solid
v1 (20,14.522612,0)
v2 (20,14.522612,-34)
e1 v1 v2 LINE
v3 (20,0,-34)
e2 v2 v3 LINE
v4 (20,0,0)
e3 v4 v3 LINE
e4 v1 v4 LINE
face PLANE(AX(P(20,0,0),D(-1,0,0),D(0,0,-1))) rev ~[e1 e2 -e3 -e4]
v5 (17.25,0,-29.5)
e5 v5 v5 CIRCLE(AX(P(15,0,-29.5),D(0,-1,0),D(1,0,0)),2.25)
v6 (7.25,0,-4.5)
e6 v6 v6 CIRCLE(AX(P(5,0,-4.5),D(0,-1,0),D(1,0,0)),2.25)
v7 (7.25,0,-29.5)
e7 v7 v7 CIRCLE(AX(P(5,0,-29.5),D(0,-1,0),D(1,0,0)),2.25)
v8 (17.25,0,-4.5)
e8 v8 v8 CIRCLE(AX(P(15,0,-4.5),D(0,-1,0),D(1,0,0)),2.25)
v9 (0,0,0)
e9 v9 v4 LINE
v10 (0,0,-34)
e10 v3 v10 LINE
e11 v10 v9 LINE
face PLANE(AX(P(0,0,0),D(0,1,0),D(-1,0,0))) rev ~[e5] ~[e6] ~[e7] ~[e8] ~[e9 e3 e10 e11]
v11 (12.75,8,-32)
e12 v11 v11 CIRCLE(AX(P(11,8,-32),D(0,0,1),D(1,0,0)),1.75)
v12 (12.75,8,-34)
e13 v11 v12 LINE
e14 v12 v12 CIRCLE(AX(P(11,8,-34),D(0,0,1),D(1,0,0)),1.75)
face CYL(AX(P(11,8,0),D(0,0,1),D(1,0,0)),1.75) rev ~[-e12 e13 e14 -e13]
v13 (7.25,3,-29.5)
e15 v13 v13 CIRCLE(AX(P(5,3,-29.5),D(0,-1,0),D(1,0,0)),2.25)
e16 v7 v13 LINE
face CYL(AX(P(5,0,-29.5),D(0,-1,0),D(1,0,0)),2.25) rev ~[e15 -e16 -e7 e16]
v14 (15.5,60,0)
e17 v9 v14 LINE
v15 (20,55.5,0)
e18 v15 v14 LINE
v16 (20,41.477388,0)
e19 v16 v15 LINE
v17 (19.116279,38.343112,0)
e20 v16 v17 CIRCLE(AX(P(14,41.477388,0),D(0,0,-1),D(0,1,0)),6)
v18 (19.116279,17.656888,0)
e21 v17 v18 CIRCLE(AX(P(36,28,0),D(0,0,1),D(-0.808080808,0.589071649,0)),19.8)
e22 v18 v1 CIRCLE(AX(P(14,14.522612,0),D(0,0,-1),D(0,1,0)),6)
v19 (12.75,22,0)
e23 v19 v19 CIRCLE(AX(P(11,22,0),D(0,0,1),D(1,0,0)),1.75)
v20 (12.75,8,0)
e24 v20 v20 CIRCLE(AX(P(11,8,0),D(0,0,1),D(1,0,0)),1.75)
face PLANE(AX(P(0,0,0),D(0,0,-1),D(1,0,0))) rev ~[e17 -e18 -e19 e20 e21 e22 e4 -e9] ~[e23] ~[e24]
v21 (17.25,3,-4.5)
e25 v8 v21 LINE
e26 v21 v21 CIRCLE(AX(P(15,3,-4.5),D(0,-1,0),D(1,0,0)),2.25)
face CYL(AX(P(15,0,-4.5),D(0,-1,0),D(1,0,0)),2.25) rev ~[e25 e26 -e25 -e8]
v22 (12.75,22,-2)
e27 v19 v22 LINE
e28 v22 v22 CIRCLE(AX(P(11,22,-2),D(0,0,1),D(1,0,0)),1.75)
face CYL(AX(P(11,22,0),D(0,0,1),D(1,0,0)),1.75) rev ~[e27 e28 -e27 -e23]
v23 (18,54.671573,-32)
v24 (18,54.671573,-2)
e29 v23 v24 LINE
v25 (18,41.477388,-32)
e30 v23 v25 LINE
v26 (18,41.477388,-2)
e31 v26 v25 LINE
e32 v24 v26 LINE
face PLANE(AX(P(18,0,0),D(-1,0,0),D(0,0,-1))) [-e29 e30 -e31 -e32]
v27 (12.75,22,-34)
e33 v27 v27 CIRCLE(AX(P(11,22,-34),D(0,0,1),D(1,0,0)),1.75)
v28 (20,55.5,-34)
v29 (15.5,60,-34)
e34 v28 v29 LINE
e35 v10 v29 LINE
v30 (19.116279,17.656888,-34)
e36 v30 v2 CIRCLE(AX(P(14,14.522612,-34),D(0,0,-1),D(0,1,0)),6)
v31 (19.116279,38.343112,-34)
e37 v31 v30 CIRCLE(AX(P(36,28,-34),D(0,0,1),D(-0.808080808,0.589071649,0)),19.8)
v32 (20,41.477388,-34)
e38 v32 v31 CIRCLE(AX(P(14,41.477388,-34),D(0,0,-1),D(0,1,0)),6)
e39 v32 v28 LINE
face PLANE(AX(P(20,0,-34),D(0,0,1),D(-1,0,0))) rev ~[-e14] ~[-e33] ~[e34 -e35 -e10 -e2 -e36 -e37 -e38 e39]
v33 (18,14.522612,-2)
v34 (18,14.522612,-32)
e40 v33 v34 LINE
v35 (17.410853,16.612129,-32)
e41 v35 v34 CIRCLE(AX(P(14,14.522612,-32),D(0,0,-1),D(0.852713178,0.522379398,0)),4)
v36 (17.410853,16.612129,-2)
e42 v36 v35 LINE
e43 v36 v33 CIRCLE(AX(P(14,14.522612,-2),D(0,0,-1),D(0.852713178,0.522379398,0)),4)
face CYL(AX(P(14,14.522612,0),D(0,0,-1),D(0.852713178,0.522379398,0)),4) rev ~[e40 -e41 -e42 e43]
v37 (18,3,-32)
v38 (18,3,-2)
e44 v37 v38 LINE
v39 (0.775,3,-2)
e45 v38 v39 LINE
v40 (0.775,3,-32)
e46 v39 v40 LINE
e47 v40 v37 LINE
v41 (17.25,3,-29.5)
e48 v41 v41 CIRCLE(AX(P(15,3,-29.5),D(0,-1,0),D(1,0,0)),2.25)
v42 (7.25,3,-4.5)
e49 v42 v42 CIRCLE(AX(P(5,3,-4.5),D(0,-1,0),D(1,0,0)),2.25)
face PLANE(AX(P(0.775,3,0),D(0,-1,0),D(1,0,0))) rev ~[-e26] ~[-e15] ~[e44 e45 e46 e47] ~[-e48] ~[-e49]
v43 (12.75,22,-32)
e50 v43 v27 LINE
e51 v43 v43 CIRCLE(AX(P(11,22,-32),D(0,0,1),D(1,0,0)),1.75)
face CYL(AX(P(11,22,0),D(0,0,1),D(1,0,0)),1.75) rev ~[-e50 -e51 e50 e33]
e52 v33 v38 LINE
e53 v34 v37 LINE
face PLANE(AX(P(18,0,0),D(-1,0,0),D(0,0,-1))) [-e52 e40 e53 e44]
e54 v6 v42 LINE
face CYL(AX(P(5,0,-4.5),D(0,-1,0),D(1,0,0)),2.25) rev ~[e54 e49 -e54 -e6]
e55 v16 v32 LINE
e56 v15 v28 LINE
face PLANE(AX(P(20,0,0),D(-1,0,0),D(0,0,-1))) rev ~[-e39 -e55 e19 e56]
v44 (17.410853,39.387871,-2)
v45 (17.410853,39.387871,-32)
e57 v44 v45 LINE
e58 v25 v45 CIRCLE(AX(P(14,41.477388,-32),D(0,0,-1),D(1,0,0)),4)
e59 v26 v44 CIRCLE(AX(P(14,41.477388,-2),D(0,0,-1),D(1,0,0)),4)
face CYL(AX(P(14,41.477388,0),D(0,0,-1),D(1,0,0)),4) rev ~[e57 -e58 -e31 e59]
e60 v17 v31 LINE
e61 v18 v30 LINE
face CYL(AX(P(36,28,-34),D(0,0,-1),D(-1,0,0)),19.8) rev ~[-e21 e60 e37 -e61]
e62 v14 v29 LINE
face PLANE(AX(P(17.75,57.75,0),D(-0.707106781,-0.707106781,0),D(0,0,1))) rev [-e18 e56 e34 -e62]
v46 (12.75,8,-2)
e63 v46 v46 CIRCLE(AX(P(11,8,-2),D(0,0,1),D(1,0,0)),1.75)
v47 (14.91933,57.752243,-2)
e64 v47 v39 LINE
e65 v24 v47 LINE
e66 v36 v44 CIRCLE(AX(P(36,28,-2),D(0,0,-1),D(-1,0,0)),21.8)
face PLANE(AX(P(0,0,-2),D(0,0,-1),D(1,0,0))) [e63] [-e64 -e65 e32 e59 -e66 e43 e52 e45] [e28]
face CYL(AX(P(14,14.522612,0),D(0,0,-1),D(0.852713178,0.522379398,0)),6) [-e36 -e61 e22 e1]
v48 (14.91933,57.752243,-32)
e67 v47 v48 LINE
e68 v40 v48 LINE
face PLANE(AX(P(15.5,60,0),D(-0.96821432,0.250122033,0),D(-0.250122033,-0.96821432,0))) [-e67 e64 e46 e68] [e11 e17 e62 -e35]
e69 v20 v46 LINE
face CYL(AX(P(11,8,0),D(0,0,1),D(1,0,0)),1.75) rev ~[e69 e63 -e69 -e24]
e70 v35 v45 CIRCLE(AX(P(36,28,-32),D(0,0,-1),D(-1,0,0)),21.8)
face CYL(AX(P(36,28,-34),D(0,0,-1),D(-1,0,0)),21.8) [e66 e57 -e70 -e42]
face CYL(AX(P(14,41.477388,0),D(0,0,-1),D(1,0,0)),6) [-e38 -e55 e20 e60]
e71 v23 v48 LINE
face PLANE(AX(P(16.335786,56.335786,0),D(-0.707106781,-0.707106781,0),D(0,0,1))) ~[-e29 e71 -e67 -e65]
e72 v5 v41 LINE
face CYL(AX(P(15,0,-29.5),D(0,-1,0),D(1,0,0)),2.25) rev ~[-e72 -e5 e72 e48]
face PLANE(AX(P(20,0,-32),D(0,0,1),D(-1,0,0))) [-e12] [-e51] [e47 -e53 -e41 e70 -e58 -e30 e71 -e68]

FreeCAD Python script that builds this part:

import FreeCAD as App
import Part
import Sketcher
from FreeCAD import Vector


def edges_at(feature, points):
    """Names of the edges that pass closest to the given points."""
    edges = feature.Shape.Edges
    near = lambda p: min(range(len(edges)), key=lambda i: edges[i].distToShape(Part.Vertex(*p))[0])
    return sorted({f"Edge{near(p) + 1}" for p in points})


def faces_at(feature, points):
    """Names of the faces that lie closest to the given points."""
    faces = feature.Shape.Faces
    near = lambda p: min(range(len(faces)), key=lambda i: faces[i].distToShape(Part.Vertex(*p))[0])
    return sorted({f"Face{near(p) + 1}" for p in points})


def add_polygon(sketch, points):
    """Adds a closed chain of lines whose ends are joined by coincident constraints."""
    first, n = sketch.GeometryCount, len(points)
    for a, b in zip(points, points[1:] + points[:1]):
        sketch.addGeometry(Part.LineSegment(App.Vector(*a, 0), App.Vector(*b, 0)), False)
    for i in range(n):
        sketch.addConstraint(Sketcher.Constraint("Coincident", first + i, 2, first + (i + 1) % n, 1))

doc = App.newDocument("Part")
body = doc.addObject("PartDesign::Body", "Body")

# Sketch on XZ plane
sketch1 = doc.addObject("Sketcher::SketchObject", "Sketch")
body.addObject(sketch1)
sketch1.AttachmentSupport = (doc.XZ_Plane, [""])
sketch1.MapMode = "FlatFace"
add_polygon(sketch1, [(0, -34), (0, 0), (20, 0), (20, -34)])  # lines 0-3
sketch1.addConstraint(Sketcher.Constraint("Vertical", 0))
sketch1.addConstraint(Sketcher.Constraint("Horizontal", 1))
sketch1.addConstraint(Sketcher.Constraint("Vertical", 2))
sketch1.addConstraint(Sketcher.Constraint("Horizontal", 3))
sketch1.addConstraint(Sketcher.Constraint("Coincident", 0, 2, -1, 1))
sketch1.addConstraint(Sketcher.Constraint("DistanceX", 1, 1, 1, 2, 20.0))
sketch1.addConstraint(Sketcher.Constraint("DistanceY", 0, 1, 0, 2, 34.0))
pad1 = doc.addObject("PartDesign::Pad", "Pad")
body.addObject(pad1)
pad1.Profile = sketch1
pad1.Length = 60
pad1.Reversed = True
doc.recompute()

chamfer = doc.addObject("PartDesign::Chamfer", "Chamfer")
body.addObject(chamfer)
chamfer.Base = (pad1, edges_at(pad1, [(20, 60, -17)]))
chamfer.Size = 4.5

# Sketch on XY plane
sketch2 = doc.addObject("Sketcher::SketchObject", "Sketch001")
body.addObject(sketch2)
sketch2.AttachmentSupport = (doc.XY_Plane, [""])
sketch2.MapMode = "FlatFace"
add_polygon(sketch2, [(16, 60), (0, 60), (0, 0)])  # lines 0-2
sketch2.addConstraint(Sketcher.Constraint("Horizontal", 0))
sketch2.addConstraint(Sketcher.Constraint("Vertical", 1))
sketch2.addConstraint(Sketcher.Constraint("Coincident", 1, 2, -1, 1))
sketch2.addConstraint(Sketcher.Constraint("DistanceY", 1, 2, 1, 1, 60.0))
sketch2.addConstraint(Sketcher.Constraint("DistanceX", 0, 2, 0, 1, 15.5))
pocket1 = doc.addObject("PartDesign::Pocket", "Pocket")
body.addObject(pocket1)
pocket1.Profile = sketch2
pocket1.Length = 60

# Sketch on XY plane
sketch3 = doc.addObject("Sketcher::SketchObject", "Sketch002")
body.addObject(sketch3)
sketch3.AttachmentSupport = (doc.XY_Plane, [""])
sketch3.MapMode = "FlatFace"
sketch3.AttachmentOffset = App.Placement(Vector(0, 0, -34), App.Rotation())
sketch3.addGeometry(Part.Circle(Vector(36, 28, 0), Vector(0, 0, 1), 20), False)
sketch3.addConstraint(Sketcher.Constraint("Diameter", 0, 39.6))
sketch3.addConstraint(Sketcher.Constraint("DistanceY", -1, 1, 0, 3, 28.0))
sketch3.addConstraint(Sketcher.Constraint("DistanceX", -1, 1, 0, 3, 36.0))
pocket2 = doc.addObject("PartDesign::Pocket", "Pocket001")
body.addObject(pocket2)
pocket2.Profile = sketch3
pocket2.Length = 60
pocket2.Reversed = True
doc.recompute()

fillet = doc.addObject("PartDesign::Fillet", "Fillet")
body.addObject(fillet)
fillet.Base = (pocket2, edges_at(pocket2, [(20, 16.336, -17), (20, 39.664, -17)]))
fillet.Radius = 6
doc.recompute()

thickness = doc.addObject("PartDesign::Thickness", "Thickness")
body.addObject(thickness)
thickness.Base = (fillet, faces_at(fillet, [(10.333, 40, -22.667)]))
thickness.Value = 2
thickness.Reversed = True
thickness.Join = "Intersection"

# Sketch on XY plane
sketch4 = doc.addObject("Sketcher::SketchObject", "Sketch003")
body.addObject(sketch4)
sketch4.AttachmentSupport = (doc.XY_Plane, [""])
sketch4.MapMode = "FlatFace"
add_polygon(sketch4, [(0.8, 3), (0, 0), (20, 0), (20, 3)])  # lines 0-3
sketch4.addConstraint(Sketcher.Constraint("Horizontal", 1))
sketch4.addConstraint(Sketcher.Constraint("Vertical", 2))
sketch4.addConstraint(Sketcher.Constraint("Horizontal", 3))
sketch4.addConstraint(Sketcher.Constraint("Coincident", 0, 2, -1, 1))
sketch4.addConstraint(Sketcher.Constraint("DistanceY", 2, 1, 2, 2, 3.0))
sketch4.addConstraint(Sketcher.Constraint("DistanceX", 1, 1, 1, 2, 20.0))
sketch4.addConstraint(Sketcher.Constraint("DistanceX", 3, 2, 3, 1, 19.225))
pad2 = doc.addObject("PartDesign::Pad", "Pad001")
body.addObject(pad2)
pad2.Profile = sketch4
pad2.Length = 34
pad2.Reversed = True

# Sketch on XZ plane
sketch5 = doc.addObject("Sketcher::SketchObject", "Sketch004")
body.addObject(sketch5)
sketch5.AttachmentSupport = (doc.XZ_Plane, [""])
sketch5.MapMode = "FlatFace"
sketch5.addGeometry(Part.Circle(Vector(5, -4.5, 0), Vector(0, 0, 1), 2.2), False)
sketch5.addGeometry(Part.Circle(Vector(15, -4.5, 0), Vector(0, 0, 1), 2.2), False)
sketch5.addGeometry(Part.Circle(Vector(5, -29.5, 0), Vector(0, 0, 1), 2.2), False)
sketch5.addGeometry(Part.Circle(Vector(15, -29.5, 0), Vector(0, 0, 1), 2.2), False)
sketch5.addConstraint(Sketcher.Constraint("Equal", 0, 1))
sketch5.addConstraint(Sketcher.Constraint("Equal", 1, 2))
sketch5.addConstraint(Sketcher.Constraint("Equal", 2, 3))
sketch5.addConstraint(Sketcher.Constraint("Horizontal", 0, 3, 1, 3))
sketch5.addConstraint(Sketcher.Constraint("Horizontal", 2, 3, 3, 3))
sketch5.addConstraint(Sketcher.Constraint("Vertical", 0, 3, 2, 3))
sketch5.addConstraint(Sketcher.Constraint("Vertical", 1, 3, 3, 3))
sketch5.addConstraint(Sketcher.Constraint("Diameter", 0, 4.5))
sketch5.addConstraint(Sketcher.Constraint("DistanceX", -1, 1, 0, 3, 5.0))
sketch5.addConstraint(Sketcher.Constraint("DistanceX", 0, 3, 1, 3, 10.0))
sketch5.addConstraint(Sketcher.Constraint("DistanceY", 2, 3, 0, 3, 25.0))
sketch5.addConstraint(Sketcher.Constraint("DistanceY", 0, 3, -1, 1, 4.5))
pocket3 = doc.addObject("PartDesign::Pocket", "Pocket002")
body.addObject(pocket3)
pocket3.Profile = sketch5
pocket3.Length = 3

# Sketch on XY plane
sketch6 = doc.addObject("Sketcher::SketchObject", "Sketch005")
body.addObject(sketch6)
sketch6.AttachmentSupport = (doc.XY_Plane, [""])
sketch6.MapMode = "FlatFace"
sketch6.addGeometry(Part.Circle(Vector(11, 8, 0), Vector(0, 0, 1), 1.8), False)
sketch6.addGeometry(Part.Circle(Vector(11, 22, 0), Vector(0, 0, 1), 1.8), False)
sketch6.addConstraint(Sketcher.Constraint("Equal", 0, 1))
sketch6.addConstraint(Sketcher.Constraint("Vertical", 0, 3, 1, 3))
sketch6.addConstraint(Sketcher.Constraint("Diameter", 0, 3.5))
sketch6.addConstraint(Sketcher.Constraint("DistanceX", -1, 1, 0, 3, 11.0))
sketch6.addConstraint(Sketcher.Constraint("DistanceY", -1, 1, 0, 3, 8.0))
sketch6.addConstraint(Sketcher.Constraint("DistanceY", 0, 3, 1, 3, 14.0))
pocket4 = doc.addObject("PartDesign::Pocket", "Pocket003")
body.addObject(pocket4)
pocket4.Profile = sketch6
pocket4.Type = "ThroughAll"

doc.recompute()
